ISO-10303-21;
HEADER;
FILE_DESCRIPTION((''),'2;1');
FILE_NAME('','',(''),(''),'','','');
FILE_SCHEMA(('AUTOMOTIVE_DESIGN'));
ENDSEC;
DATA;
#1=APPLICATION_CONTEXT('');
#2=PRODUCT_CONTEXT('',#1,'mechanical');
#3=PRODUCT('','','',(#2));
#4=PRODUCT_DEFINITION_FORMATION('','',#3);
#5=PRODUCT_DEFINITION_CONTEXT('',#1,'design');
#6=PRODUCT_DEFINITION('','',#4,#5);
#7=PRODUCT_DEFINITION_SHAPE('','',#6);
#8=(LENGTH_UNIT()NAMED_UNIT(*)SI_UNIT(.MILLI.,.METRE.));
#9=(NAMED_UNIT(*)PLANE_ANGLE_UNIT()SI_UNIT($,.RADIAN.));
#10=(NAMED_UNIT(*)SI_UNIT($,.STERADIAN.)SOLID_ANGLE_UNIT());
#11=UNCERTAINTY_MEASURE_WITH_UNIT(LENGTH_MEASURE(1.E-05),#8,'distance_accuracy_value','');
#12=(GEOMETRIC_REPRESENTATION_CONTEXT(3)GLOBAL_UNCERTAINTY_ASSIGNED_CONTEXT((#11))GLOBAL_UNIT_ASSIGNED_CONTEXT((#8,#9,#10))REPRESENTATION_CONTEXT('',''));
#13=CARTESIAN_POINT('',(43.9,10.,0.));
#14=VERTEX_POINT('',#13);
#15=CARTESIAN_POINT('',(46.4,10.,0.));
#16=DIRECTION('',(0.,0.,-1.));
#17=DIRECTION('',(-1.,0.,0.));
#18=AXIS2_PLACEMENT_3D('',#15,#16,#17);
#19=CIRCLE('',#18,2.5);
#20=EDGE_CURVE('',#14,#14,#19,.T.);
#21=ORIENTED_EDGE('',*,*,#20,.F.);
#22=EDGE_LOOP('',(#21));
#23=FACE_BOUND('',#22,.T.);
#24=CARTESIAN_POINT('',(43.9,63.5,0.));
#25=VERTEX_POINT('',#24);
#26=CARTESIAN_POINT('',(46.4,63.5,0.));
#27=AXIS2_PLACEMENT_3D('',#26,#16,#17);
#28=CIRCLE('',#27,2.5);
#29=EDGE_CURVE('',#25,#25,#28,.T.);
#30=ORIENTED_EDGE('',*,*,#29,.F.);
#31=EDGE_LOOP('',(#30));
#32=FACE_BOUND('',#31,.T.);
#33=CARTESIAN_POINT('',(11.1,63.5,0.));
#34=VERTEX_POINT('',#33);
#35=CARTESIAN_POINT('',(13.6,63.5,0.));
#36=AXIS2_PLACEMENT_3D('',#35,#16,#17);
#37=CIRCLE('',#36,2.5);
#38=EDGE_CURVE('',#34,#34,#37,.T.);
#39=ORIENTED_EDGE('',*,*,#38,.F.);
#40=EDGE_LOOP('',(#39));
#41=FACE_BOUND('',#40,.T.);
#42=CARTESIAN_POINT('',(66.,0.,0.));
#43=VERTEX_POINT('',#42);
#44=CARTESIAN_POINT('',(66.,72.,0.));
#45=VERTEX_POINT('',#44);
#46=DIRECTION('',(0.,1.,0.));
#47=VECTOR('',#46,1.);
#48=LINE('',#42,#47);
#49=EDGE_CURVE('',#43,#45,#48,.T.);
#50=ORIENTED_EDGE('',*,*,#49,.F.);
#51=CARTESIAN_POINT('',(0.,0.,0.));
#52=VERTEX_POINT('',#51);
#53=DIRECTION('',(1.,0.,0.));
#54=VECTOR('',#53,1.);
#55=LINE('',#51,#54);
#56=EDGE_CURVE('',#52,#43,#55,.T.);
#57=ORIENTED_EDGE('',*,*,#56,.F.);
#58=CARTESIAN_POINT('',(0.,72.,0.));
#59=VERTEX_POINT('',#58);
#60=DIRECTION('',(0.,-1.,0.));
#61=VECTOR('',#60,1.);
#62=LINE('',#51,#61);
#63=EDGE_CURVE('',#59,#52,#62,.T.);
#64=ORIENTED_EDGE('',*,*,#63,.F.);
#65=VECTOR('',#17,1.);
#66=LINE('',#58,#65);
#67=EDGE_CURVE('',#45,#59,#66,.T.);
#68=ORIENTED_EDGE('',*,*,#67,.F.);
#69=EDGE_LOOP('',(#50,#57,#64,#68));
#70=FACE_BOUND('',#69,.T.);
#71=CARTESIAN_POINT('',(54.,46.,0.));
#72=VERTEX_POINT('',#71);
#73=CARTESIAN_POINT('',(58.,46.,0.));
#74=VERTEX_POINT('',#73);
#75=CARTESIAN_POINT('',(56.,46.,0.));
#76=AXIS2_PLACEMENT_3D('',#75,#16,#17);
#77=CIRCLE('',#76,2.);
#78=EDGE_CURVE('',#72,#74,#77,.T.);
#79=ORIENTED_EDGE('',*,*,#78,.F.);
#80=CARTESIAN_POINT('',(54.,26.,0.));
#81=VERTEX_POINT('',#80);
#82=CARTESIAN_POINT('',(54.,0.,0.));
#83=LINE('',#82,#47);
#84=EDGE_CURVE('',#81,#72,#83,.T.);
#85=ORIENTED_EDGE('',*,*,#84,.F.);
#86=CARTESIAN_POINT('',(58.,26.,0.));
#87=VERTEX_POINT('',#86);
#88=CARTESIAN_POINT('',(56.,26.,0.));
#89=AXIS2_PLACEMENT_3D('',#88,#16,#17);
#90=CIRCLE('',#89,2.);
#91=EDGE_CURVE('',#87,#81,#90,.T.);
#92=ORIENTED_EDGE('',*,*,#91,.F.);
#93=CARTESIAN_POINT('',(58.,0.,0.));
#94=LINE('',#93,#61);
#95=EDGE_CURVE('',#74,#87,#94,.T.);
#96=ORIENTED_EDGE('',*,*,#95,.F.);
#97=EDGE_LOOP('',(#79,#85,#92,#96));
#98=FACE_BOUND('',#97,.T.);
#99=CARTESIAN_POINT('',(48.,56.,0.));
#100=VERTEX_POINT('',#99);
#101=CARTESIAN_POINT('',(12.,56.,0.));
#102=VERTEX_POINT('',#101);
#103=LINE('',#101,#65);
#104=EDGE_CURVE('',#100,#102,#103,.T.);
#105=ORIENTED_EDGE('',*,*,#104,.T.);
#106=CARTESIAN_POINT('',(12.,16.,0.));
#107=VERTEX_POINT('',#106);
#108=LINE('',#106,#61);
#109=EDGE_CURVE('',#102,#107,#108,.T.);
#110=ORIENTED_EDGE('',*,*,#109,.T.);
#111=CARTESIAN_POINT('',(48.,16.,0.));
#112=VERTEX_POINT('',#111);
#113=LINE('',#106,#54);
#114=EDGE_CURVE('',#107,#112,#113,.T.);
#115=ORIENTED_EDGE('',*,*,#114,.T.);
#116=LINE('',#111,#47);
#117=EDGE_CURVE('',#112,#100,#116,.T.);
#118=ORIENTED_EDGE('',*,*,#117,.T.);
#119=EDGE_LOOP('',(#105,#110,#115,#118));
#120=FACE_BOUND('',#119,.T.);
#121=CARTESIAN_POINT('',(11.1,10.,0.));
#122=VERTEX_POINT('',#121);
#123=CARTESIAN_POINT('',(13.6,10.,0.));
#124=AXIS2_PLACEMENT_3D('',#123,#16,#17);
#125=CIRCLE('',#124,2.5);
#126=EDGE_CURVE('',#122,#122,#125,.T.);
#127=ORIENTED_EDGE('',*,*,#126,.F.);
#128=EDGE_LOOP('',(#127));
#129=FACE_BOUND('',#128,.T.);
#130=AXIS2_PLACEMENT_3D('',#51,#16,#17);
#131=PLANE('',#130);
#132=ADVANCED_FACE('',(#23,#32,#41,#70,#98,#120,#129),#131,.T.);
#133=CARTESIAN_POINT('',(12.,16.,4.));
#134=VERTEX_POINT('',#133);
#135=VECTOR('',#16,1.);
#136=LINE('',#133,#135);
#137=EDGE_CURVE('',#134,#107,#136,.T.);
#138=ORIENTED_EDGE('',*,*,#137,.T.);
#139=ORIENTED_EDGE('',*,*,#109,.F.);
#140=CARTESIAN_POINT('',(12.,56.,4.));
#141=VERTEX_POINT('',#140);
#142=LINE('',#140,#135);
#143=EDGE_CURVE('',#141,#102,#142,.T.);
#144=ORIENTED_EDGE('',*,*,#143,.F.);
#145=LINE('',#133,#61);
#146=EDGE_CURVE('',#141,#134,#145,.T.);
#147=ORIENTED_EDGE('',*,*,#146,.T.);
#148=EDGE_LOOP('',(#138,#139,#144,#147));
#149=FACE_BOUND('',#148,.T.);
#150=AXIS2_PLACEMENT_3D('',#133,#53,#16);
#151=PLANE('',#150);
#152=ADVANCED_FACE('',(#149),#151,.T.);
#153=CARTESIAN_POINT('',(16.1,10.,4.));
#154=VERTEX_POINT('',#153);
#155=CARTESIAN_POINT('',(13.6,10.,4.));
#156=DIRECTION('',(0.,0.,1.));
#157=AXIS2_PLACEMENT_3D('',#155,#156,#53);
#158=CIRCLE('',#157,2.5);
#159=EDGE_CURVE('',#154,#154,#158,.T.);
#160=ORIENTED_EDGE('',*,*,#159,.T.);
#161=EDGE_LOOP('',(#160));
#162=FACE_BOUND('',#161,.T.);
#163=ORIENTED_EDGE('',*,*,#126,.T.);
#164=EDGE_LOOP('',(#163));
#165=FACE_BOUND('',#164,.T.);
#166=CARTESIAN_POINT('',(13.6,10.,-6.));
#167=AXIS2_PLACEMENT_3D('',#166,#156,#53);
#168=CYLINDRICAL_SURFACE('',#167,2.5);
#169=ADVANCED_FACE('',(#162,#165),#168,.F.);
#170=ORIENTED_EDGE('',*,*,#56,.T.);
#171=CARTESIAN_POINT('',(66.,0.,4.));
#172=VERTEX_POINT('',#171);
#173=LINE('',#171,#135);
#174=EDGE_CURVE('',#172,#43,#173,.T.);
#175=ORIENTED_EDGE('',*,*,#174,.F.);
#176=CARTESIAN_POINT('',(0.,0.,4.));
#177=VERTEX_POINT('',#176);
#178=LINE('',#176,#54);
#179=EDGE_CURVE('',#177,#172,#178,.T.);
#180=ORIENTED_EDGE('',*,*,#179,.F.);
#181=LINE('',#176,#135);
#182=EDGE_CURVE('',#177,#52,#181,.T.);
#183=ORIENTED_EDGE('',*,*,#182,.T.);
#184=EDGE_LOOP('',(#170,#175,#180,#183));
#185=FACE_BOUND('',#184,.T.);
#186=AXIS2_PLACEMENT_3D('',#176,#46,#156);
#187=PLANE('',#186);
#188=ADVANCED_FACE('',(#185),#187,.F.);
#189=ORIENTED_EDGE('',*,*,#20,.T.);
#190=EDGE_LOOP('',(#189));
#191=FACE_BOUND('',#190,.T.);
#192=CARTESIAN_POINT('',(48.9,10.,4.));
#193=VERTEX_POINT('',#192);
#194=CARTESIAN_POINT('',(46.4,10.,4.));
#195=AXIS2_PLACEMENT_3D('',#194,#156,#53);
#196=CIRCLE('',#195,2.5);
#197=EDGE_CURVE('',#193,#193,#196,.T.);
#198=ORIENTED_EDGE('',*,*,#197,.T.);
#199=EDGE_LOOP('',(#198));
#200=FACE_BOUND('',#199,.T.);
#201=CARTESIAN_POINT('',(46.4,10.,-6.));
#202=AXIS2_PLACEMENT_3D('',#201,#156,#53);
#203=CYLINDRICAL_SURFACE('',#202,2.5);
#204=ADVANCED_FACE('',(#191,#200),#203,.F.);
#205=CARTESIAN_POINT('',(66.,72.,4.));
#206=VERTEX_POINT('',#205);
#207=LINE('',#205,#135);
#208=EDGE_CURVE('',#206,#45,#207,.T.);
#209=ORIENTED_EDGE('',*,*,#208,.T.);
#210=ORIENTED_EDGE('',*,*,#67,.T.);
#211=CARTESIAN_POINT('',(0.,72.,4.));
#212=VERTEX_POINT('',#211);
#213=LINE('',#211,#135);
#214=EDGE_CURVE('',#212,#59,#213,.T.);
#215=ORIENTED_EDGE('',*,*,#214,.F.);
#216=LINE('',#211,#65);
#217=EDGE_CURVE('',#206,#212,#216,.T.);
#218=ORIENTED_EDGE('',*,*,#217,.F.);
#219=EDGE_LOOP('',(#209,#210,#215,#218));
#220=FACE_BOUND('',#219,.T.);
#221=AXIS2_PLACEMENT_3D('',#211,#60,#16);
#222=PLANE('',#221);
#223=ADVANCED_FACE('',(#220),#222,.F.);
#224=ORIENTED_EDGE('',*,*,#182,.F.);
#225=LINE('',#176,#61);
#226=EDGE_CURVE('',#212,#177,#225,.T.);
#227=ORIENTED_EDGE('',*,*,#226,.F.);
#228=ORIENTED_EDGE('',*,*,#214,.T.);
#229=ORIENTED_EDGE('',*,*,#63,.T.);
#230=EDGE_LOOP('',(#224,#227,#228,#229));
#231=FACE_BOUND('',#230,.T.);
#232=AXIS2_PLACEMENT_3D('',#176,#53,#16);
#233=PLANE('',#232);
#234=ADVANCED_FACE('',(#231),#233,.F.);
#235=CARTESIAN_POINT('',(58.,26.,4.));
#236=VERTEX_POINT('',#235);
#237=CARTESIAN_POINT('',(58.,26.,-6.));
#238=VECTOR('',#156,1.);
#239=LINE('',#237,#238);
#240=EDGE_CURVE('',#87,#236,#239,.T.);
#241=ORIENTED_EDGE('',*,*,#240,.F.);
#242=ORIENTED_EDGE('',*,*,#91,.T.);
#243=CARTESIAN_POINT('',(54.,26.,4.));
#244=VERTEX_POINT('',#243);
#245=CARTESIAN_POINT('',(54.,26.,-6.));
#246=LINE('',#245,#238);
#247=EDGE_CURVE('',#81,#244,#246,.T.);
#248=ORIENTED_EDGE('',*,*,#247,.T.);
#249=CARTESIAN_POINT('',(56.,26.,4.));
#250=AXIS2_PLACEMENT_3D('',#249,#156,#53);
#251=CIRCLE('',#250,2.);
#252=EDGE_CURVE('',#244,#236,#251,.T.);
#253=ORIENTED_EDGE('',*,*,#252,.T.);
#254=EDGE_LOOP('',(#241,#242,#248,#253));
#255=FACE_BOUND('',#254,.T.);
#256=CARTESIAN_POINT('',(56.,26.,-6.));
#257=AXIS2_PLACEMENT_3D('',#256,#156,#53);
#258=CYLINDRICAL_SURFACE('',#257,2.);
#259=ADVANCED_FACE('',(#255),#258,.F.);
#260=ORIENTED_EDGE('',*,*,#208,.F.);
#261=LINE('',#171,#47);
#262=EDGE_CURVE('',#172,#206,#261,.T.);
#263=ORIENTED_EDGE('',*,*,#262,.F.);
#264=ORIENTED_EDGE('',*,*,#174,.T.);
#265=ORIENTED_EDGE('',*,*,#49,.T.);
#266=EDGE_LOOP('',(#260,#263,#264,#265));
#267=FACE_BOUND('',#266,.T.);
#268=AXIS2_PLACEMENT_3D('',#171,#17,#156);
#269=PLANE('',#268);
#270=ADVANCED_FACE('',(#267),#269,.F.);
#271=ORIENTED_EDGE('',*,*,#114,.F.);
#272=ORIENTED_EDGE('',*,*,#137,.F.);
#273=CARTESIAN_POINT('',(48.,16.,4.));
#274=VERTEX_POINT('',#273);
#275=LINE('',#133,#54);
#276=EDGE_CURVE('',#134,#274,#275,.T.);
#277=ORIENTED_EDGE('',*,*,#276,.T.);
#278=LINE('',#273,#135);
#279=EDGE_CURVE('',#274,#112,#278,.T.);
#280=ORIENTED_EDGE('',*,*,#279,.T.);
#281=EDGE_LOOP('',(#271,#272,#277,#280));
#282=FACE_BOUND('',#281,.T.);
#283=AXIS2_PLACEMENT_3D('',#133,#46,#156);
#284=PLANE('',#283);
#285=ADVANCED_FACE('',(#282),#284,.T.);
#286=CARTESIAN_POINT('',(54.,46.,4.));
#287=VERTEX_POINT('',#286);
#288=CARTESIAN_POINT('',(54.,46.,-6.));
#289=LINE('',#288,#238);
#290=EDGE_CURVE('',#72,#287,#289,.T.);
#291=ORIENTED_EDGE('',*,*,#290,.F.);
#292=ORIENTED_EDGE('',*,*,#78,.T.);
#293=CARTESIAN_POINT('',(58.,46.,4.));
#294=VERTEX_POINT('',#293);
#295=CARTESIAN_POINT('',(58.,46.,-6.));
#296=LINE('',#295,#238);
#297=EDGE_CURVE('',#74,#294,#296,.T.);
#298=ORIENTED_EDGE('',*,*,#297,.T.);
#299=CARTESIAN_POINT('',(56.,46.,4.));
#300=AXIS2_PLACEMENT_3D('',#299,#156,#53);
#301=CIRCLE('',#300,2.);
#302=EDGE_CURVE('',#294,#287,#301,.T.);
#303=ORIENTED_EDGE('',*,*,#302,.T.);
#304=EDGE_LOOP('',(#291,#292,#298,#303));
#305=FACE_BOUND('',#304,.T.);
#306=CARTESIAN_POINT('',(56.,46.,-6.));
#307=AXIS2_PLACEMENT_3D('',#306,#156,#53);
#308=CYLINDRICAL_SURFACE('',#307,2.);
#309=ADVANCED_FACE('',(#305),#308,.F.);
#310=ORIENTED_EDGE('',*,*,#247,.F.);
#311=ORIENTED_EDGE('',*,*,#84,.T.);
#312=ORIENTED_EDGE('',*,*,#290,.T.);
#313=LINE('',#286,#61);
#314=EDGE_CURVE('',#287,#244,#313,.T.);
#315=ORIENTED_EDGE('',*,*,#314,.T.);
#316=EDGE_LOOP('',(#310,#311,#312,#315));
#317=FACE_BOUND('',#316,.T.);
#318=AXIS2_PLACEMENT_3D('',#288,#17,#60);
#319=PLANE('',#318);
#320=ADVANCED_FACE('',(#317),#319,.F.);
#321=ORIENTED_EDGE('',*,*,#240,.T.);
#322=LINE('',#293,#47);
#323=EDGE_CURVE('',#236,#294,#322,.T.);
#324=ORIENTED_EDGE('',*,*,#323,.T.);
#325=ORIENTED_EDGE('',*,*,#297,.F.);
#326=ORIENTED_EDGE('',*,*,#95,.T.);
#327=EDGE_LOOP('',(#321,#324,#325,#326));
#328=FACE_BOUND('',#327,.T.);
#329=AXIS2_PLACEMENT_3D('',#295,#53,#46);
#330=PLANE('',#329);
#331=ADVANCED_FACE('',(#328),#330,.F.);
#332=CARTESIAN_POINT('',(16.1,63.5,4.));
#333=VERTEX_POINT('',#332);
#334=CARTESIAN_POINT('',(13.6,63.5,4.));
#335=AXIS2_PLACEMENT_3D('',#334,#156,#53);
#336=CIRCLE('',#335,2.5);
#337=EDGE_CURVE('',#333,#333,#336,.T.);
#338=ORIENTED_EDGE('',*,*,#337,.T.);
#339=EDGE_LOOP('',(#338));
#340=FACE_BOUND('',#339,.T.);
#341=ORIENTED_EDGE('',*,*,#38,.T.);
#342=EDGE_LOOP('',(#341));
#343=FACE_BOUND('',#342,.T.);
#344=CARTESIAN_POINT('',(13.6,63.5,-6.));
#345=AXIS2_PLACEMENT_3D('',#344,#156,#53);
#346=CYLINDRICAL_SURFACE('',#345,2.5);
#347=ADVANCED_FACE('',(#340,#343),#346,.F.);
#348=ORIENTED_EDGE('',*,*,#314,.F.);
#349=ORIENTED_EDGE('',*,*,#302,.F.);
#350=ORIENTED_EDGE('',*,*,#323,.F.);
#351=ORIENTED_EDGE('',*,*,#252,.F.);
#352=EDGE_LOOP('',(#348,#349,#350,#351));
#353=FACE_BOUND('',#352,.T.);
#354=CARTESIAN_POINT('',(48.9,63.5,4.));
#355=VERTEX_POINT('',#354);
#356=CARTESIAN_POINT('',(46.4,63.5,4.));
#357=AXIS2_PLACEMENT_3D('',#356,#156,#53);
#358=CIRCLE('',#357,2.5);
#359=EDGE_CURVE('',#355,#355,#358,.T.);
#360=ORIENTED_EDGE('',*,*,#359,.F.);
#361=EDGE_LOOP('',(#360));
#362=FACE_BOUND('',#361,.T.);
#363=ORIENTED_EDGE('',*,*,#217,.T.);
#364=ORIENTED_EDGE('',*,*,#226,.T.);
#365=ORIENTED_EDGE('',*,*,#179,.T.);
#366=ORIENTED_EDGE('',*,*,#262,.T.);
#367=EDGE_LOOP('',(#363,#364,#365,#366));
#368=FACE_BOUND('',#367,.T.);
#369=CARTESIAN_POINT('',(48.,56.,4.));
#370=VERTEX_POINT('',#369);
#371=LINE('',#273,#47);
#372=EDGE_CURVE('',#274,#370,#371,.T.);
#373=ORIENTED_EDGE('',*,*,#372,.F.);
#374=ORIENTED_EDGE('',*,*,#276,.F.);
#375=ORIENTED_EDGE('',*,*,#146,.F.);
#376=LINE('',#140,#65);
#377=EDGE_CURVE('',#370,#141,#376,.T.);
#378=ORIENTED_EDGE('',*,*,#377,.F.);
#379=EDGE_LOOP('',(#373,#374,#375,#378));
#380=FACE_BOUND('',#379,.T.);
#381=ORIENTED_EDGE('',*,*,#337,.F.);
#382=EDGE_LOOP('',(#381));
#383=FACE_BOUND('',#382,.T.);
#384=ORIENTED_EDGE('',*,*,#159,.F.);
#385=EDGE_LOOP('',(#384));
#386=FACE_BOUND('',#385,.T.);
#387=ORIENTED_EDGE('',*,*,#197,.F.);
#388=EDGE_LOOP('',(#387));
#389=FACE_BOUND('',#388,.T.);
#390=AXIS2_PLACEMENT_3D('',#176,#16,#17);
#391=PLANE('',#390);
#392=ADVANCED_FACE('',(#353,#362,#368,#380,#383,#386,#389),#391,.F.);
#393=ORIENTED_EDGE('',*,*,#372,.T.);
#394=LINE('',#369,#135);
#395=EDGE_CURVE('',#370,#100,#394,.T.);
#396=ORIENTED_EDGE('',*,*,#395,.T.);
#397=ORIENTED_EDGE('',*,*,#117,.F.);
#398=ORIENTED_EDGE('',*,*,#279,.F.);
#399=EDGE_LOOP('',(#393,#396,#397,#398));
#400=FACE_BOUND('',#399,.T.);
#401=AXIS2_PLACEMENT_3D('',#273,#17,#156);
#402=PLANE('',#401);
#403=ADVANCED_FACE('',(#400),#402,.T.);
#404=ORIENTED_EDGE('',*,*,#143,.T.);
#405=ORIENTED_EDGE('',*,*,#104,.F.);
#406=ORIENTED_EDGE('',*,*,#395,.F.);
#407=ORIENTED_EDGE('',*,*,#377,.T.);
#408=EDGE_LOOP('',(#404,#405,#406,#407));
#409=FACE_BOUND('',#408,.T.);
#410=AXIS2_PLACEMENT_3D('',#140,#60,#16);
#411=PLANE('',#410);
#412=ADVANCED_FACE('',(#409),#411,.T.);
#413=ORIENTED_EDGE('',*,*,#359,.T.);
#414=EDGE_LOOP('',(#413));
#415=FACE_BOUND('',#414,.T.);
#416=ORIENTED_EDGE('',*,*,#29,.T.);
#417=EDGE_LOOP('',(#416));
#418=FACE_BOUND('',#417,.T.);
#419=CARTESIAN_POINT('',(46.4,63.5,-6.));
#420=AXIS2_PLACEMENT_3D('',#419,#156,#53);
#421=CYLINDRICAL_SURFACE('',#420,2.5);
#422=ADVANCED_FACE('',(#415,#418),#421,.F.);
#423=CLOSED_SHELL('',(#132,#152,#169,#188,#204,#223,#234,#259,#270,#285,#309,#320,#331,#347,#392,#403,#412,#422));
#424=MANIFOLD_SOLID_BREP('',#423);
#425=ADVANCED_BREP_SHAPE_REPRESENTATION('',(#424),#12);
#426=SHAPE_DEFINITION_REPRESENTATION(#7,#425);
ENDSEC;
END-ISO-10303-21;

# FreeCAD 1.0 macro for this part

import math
import FreeCAD as App
import Part
import Sketcher
Q = App.Units.Quantity


def add_polygon(sketch, points):
    """Adds a closed chain of lines whose ends are joined by coincident constraints."""
    first, n = sketch.GeometryCount, len(points)
    for a, b in zip(points, points[1:] + points[:1]):
        sketch.addGeometry(Part.LineSegment(App.Vector(*a, 0), App.Vector(*b, 0)), False)
    for i in range(n):
        sketch.addConstraint(Sketcher.Constraint("Coincident", first + i, 2, first + (i + 1) % n, 1))

doc = App.newDocument("Part")
body = doc.addObject("PartDesign::Body", "Body")

# Sketch on XY plane
sketch1 = doc.addObject("Sketcher::SketchObject", "Sketch")
body.addObject(sketch1)
sketch1.AttachmentSupport = (doc.XY_Plane, [""])
sketch1.MapMode = "FlatFace"
add_polygon(sketch1, [(0, 72), (0, 0), (66, 0), (66, 72)])  # lines 0-3
add_polygon(sketch1, [(48, 16), (12, 16), (12, 56), (48, 56)])  # lines 4-7
sketch1.addConstraint(Sketcher.Constraint("Vertical", 0))
sketch1.addConstraint(Sketcher.Constraint("Horizontal", 1))
sketch1.addConstraint(Sketcher.Constraint("Vertical", 2))
sketch1.addConstraint(Sketcher.Constraint("Horizontal", 3))
sketch1.addConstraint(Sketcher.Constraint("Horizontal", 4))
sketch1.addConstraint(Sketcher.Constraint("Vertical", 5))
sketch1.addConstraint(Sketcher.Constraint("Horizontal", 6))
sketch1.addConstraint(Sketcher.Constraint("Vertical", 7))
sketch1.addConstraint(Sketcher.Constraint("Coincident", 0, 2, -1, 1))
sketch1.addConstraint(Sketcher.Constraint("DistanceX", 1, 1, 1, 2, Q("66 mm")))
sketch1.addConstraint(Sketcher.Constraint("DistanceX", 4, 2, 4, 1, Q("36 mm")))
sketch1.addConstraint(Sketcher.Constraint("DistanceY", 0, 2, 0, 1, Q("72 mm")))
sketch1.addConstraint(Sketcher.Constraint("DistanceY", 5, 1, 5, 2, Q("40 mm")))
sketch1.addConstraint(Sketcher.Constraint("DistanceX", -1, 1, 4, 2, Q("12 mm")))
sketch1.addConstraint(Sketcher.Constraint("DistanceY", -1, 1, 4, 2, Q("16 mm")))
pad1 = doc.addObject("PartDesign::Pad", "Pad")
body.addObject(pad1)
pad1.Profile = sketch1
pad1.Length = 4

# Sketch on XY plane
sketch2 = doc.addObject("Sketcher::SketchObject", "Sketch001")
body.addObject(sketch2)
sketch2.AttachmentSupport = (doc.XY_Plane, [""])
sketch2.MapMode = "FlatFace"
sketch2.AttachmentOffset = App.Placement(App.Vector(0, 0, 4), App.Rotation())
sketch2.addGeometry(Part.Circle(App.Vector(46.4, 63.5, 0), App.Vector(0, 0, 1), 2.5), False)
sketch2.addGeometry(Part.Circle(App.Vector(13.6, 63.5, 0), App.Vector(0, 0, 1), 2.5), False)
sketch2.addGeometry(Part.Circle(App.Vector(13.6, 10, 0), App.Vector(0, 0, 1), 2.5), False)
sketch2.addGeometry(Part.Circle(App.Vector(46.4, 10, 0), App.Vector(0, 0, 1), 2.5), False)
sketch2.addConstraint(Sketcher.Constraint("Equal", 0, 1))
sketch2.addConstraint(Sketcher.Constraint("Equal", 1, 2))
sketch2.addConstraint(Sketcher.Constraint("Equal", 2, 3))
sketch2.addConstraint(Sketcher.Constraint("Horizontal", 0, 3, 1, 3))
sketch2.addConstraint(Sketcher.Constraint("Horizontal", 2, 3, 3, 3))
sketch2.addConstraint(Sketcher.Constraint("Vertical", 1, 3, 2, 3))
sketch2.addConstraint(Sketcher.Constraint("Vertical", 0, 3, 3, 3))
sketch2.addConstraint(Sketcher.Constraint("Diameter", 0, Q("5 mm")))
sketch2.addConstraint(Sketcher.Constraint("DistanceY", -1, 1, 2, 3, Q("10 mm")))
sketch2.addConstraint(Sketcher.Constraint("DistanceX", -1, 1, 0, 3, Q("46.4 mm")))
sketch2.addConstraint(Sketcher.Constraint("DistanceY", -1, 1, 0, 3, Q("63.5 mm")))
sketch2.addConstraint(Sketcher.Constraint("DistanceX", -1, 1, 1, 3, Q("13.6 mm")))
pocket1 = doc.addObject("PartDesign::Pocket", "Pocket")
body.addObject(pocket1)
pocket1.Profile = sketch2
pocket1.Length = 10

# Sketch on XY plane
sketch3 = doc.addObject("Sketcher::SketchObject", "Sketch002")
body.addObject(sketch3)
sketch3.AttachmentSupport = (doc.XY_Plane, [""])
sketch3.MapMode = "FlatFace"
sketch3.AttachmentOffset = App.Placement(App.Vector(0, 0, 4), App.Rotation())
sketch3.addGeometry(Part.LineSegment(App.Vector(58, 26, 0), App.Vector(58, 46, 0)), False)
sketch3.addGeometry(Part.ArcOfCircle(Part.Circle(App.Vector(56, 46, 0), App.Vector(0, 0, 1), 2), math.radians(0), math.radians(180)), False)
sketch3.addGeometry(Part.LineSegment(App.Vector(54, 46, 0), App.Vector(54, 26, 0)), False)
sketch3.addGeometry(Part.ArcOfCircle(Part.Circle(App.Vector(56, 26, 0), App.Vector(0, 0, 1), 2), math.radians(180), math.radians(360)), False)
sketch3.addConstraint(Sketcher.Constraint("Tangent", 0, 2, 1, 1))
sketch3.addConstraint(Sketcher.Constraint("Tangent", 1, 2, 2, 1))
sketch3.addConstraint(Sketcher.Constraint("Tangent", 2, 2, 3, 1))
sketch3.addConstraint(Sketcher.Constraint("Tangent", 3, 2, 0, 1))
sketch3.addConstraint(Sketcher.Constraint("Vertical", 0))
sketch3.addConstraint(Sketcher.Constraint("Vertical", 2))
sketch3.addConstraint(Sketcher.Constraint("Radius", 1, Q("2 mm")))
sketch3.addConstraint(Sketcher.Constraint("DistanceY", 0, 1, 0, 2, Q("20 mm")))
sketch3.addConstraint(Sketcher.Constraint("DistanceX", -1, 1, 1, 3, Q("56 mm")))
sketch3.addConstraint(Sketcher.Constraint("DistanceY", -1, 1, 1, 3, Q("46 mm")))
pocket2 = doc.addObject("PartDesign::Pocket", "Pocket001")
body.addObject(pocket2)
pocket2.Profile = sketch3
pocket2.Length = 10

doc.recompute()
